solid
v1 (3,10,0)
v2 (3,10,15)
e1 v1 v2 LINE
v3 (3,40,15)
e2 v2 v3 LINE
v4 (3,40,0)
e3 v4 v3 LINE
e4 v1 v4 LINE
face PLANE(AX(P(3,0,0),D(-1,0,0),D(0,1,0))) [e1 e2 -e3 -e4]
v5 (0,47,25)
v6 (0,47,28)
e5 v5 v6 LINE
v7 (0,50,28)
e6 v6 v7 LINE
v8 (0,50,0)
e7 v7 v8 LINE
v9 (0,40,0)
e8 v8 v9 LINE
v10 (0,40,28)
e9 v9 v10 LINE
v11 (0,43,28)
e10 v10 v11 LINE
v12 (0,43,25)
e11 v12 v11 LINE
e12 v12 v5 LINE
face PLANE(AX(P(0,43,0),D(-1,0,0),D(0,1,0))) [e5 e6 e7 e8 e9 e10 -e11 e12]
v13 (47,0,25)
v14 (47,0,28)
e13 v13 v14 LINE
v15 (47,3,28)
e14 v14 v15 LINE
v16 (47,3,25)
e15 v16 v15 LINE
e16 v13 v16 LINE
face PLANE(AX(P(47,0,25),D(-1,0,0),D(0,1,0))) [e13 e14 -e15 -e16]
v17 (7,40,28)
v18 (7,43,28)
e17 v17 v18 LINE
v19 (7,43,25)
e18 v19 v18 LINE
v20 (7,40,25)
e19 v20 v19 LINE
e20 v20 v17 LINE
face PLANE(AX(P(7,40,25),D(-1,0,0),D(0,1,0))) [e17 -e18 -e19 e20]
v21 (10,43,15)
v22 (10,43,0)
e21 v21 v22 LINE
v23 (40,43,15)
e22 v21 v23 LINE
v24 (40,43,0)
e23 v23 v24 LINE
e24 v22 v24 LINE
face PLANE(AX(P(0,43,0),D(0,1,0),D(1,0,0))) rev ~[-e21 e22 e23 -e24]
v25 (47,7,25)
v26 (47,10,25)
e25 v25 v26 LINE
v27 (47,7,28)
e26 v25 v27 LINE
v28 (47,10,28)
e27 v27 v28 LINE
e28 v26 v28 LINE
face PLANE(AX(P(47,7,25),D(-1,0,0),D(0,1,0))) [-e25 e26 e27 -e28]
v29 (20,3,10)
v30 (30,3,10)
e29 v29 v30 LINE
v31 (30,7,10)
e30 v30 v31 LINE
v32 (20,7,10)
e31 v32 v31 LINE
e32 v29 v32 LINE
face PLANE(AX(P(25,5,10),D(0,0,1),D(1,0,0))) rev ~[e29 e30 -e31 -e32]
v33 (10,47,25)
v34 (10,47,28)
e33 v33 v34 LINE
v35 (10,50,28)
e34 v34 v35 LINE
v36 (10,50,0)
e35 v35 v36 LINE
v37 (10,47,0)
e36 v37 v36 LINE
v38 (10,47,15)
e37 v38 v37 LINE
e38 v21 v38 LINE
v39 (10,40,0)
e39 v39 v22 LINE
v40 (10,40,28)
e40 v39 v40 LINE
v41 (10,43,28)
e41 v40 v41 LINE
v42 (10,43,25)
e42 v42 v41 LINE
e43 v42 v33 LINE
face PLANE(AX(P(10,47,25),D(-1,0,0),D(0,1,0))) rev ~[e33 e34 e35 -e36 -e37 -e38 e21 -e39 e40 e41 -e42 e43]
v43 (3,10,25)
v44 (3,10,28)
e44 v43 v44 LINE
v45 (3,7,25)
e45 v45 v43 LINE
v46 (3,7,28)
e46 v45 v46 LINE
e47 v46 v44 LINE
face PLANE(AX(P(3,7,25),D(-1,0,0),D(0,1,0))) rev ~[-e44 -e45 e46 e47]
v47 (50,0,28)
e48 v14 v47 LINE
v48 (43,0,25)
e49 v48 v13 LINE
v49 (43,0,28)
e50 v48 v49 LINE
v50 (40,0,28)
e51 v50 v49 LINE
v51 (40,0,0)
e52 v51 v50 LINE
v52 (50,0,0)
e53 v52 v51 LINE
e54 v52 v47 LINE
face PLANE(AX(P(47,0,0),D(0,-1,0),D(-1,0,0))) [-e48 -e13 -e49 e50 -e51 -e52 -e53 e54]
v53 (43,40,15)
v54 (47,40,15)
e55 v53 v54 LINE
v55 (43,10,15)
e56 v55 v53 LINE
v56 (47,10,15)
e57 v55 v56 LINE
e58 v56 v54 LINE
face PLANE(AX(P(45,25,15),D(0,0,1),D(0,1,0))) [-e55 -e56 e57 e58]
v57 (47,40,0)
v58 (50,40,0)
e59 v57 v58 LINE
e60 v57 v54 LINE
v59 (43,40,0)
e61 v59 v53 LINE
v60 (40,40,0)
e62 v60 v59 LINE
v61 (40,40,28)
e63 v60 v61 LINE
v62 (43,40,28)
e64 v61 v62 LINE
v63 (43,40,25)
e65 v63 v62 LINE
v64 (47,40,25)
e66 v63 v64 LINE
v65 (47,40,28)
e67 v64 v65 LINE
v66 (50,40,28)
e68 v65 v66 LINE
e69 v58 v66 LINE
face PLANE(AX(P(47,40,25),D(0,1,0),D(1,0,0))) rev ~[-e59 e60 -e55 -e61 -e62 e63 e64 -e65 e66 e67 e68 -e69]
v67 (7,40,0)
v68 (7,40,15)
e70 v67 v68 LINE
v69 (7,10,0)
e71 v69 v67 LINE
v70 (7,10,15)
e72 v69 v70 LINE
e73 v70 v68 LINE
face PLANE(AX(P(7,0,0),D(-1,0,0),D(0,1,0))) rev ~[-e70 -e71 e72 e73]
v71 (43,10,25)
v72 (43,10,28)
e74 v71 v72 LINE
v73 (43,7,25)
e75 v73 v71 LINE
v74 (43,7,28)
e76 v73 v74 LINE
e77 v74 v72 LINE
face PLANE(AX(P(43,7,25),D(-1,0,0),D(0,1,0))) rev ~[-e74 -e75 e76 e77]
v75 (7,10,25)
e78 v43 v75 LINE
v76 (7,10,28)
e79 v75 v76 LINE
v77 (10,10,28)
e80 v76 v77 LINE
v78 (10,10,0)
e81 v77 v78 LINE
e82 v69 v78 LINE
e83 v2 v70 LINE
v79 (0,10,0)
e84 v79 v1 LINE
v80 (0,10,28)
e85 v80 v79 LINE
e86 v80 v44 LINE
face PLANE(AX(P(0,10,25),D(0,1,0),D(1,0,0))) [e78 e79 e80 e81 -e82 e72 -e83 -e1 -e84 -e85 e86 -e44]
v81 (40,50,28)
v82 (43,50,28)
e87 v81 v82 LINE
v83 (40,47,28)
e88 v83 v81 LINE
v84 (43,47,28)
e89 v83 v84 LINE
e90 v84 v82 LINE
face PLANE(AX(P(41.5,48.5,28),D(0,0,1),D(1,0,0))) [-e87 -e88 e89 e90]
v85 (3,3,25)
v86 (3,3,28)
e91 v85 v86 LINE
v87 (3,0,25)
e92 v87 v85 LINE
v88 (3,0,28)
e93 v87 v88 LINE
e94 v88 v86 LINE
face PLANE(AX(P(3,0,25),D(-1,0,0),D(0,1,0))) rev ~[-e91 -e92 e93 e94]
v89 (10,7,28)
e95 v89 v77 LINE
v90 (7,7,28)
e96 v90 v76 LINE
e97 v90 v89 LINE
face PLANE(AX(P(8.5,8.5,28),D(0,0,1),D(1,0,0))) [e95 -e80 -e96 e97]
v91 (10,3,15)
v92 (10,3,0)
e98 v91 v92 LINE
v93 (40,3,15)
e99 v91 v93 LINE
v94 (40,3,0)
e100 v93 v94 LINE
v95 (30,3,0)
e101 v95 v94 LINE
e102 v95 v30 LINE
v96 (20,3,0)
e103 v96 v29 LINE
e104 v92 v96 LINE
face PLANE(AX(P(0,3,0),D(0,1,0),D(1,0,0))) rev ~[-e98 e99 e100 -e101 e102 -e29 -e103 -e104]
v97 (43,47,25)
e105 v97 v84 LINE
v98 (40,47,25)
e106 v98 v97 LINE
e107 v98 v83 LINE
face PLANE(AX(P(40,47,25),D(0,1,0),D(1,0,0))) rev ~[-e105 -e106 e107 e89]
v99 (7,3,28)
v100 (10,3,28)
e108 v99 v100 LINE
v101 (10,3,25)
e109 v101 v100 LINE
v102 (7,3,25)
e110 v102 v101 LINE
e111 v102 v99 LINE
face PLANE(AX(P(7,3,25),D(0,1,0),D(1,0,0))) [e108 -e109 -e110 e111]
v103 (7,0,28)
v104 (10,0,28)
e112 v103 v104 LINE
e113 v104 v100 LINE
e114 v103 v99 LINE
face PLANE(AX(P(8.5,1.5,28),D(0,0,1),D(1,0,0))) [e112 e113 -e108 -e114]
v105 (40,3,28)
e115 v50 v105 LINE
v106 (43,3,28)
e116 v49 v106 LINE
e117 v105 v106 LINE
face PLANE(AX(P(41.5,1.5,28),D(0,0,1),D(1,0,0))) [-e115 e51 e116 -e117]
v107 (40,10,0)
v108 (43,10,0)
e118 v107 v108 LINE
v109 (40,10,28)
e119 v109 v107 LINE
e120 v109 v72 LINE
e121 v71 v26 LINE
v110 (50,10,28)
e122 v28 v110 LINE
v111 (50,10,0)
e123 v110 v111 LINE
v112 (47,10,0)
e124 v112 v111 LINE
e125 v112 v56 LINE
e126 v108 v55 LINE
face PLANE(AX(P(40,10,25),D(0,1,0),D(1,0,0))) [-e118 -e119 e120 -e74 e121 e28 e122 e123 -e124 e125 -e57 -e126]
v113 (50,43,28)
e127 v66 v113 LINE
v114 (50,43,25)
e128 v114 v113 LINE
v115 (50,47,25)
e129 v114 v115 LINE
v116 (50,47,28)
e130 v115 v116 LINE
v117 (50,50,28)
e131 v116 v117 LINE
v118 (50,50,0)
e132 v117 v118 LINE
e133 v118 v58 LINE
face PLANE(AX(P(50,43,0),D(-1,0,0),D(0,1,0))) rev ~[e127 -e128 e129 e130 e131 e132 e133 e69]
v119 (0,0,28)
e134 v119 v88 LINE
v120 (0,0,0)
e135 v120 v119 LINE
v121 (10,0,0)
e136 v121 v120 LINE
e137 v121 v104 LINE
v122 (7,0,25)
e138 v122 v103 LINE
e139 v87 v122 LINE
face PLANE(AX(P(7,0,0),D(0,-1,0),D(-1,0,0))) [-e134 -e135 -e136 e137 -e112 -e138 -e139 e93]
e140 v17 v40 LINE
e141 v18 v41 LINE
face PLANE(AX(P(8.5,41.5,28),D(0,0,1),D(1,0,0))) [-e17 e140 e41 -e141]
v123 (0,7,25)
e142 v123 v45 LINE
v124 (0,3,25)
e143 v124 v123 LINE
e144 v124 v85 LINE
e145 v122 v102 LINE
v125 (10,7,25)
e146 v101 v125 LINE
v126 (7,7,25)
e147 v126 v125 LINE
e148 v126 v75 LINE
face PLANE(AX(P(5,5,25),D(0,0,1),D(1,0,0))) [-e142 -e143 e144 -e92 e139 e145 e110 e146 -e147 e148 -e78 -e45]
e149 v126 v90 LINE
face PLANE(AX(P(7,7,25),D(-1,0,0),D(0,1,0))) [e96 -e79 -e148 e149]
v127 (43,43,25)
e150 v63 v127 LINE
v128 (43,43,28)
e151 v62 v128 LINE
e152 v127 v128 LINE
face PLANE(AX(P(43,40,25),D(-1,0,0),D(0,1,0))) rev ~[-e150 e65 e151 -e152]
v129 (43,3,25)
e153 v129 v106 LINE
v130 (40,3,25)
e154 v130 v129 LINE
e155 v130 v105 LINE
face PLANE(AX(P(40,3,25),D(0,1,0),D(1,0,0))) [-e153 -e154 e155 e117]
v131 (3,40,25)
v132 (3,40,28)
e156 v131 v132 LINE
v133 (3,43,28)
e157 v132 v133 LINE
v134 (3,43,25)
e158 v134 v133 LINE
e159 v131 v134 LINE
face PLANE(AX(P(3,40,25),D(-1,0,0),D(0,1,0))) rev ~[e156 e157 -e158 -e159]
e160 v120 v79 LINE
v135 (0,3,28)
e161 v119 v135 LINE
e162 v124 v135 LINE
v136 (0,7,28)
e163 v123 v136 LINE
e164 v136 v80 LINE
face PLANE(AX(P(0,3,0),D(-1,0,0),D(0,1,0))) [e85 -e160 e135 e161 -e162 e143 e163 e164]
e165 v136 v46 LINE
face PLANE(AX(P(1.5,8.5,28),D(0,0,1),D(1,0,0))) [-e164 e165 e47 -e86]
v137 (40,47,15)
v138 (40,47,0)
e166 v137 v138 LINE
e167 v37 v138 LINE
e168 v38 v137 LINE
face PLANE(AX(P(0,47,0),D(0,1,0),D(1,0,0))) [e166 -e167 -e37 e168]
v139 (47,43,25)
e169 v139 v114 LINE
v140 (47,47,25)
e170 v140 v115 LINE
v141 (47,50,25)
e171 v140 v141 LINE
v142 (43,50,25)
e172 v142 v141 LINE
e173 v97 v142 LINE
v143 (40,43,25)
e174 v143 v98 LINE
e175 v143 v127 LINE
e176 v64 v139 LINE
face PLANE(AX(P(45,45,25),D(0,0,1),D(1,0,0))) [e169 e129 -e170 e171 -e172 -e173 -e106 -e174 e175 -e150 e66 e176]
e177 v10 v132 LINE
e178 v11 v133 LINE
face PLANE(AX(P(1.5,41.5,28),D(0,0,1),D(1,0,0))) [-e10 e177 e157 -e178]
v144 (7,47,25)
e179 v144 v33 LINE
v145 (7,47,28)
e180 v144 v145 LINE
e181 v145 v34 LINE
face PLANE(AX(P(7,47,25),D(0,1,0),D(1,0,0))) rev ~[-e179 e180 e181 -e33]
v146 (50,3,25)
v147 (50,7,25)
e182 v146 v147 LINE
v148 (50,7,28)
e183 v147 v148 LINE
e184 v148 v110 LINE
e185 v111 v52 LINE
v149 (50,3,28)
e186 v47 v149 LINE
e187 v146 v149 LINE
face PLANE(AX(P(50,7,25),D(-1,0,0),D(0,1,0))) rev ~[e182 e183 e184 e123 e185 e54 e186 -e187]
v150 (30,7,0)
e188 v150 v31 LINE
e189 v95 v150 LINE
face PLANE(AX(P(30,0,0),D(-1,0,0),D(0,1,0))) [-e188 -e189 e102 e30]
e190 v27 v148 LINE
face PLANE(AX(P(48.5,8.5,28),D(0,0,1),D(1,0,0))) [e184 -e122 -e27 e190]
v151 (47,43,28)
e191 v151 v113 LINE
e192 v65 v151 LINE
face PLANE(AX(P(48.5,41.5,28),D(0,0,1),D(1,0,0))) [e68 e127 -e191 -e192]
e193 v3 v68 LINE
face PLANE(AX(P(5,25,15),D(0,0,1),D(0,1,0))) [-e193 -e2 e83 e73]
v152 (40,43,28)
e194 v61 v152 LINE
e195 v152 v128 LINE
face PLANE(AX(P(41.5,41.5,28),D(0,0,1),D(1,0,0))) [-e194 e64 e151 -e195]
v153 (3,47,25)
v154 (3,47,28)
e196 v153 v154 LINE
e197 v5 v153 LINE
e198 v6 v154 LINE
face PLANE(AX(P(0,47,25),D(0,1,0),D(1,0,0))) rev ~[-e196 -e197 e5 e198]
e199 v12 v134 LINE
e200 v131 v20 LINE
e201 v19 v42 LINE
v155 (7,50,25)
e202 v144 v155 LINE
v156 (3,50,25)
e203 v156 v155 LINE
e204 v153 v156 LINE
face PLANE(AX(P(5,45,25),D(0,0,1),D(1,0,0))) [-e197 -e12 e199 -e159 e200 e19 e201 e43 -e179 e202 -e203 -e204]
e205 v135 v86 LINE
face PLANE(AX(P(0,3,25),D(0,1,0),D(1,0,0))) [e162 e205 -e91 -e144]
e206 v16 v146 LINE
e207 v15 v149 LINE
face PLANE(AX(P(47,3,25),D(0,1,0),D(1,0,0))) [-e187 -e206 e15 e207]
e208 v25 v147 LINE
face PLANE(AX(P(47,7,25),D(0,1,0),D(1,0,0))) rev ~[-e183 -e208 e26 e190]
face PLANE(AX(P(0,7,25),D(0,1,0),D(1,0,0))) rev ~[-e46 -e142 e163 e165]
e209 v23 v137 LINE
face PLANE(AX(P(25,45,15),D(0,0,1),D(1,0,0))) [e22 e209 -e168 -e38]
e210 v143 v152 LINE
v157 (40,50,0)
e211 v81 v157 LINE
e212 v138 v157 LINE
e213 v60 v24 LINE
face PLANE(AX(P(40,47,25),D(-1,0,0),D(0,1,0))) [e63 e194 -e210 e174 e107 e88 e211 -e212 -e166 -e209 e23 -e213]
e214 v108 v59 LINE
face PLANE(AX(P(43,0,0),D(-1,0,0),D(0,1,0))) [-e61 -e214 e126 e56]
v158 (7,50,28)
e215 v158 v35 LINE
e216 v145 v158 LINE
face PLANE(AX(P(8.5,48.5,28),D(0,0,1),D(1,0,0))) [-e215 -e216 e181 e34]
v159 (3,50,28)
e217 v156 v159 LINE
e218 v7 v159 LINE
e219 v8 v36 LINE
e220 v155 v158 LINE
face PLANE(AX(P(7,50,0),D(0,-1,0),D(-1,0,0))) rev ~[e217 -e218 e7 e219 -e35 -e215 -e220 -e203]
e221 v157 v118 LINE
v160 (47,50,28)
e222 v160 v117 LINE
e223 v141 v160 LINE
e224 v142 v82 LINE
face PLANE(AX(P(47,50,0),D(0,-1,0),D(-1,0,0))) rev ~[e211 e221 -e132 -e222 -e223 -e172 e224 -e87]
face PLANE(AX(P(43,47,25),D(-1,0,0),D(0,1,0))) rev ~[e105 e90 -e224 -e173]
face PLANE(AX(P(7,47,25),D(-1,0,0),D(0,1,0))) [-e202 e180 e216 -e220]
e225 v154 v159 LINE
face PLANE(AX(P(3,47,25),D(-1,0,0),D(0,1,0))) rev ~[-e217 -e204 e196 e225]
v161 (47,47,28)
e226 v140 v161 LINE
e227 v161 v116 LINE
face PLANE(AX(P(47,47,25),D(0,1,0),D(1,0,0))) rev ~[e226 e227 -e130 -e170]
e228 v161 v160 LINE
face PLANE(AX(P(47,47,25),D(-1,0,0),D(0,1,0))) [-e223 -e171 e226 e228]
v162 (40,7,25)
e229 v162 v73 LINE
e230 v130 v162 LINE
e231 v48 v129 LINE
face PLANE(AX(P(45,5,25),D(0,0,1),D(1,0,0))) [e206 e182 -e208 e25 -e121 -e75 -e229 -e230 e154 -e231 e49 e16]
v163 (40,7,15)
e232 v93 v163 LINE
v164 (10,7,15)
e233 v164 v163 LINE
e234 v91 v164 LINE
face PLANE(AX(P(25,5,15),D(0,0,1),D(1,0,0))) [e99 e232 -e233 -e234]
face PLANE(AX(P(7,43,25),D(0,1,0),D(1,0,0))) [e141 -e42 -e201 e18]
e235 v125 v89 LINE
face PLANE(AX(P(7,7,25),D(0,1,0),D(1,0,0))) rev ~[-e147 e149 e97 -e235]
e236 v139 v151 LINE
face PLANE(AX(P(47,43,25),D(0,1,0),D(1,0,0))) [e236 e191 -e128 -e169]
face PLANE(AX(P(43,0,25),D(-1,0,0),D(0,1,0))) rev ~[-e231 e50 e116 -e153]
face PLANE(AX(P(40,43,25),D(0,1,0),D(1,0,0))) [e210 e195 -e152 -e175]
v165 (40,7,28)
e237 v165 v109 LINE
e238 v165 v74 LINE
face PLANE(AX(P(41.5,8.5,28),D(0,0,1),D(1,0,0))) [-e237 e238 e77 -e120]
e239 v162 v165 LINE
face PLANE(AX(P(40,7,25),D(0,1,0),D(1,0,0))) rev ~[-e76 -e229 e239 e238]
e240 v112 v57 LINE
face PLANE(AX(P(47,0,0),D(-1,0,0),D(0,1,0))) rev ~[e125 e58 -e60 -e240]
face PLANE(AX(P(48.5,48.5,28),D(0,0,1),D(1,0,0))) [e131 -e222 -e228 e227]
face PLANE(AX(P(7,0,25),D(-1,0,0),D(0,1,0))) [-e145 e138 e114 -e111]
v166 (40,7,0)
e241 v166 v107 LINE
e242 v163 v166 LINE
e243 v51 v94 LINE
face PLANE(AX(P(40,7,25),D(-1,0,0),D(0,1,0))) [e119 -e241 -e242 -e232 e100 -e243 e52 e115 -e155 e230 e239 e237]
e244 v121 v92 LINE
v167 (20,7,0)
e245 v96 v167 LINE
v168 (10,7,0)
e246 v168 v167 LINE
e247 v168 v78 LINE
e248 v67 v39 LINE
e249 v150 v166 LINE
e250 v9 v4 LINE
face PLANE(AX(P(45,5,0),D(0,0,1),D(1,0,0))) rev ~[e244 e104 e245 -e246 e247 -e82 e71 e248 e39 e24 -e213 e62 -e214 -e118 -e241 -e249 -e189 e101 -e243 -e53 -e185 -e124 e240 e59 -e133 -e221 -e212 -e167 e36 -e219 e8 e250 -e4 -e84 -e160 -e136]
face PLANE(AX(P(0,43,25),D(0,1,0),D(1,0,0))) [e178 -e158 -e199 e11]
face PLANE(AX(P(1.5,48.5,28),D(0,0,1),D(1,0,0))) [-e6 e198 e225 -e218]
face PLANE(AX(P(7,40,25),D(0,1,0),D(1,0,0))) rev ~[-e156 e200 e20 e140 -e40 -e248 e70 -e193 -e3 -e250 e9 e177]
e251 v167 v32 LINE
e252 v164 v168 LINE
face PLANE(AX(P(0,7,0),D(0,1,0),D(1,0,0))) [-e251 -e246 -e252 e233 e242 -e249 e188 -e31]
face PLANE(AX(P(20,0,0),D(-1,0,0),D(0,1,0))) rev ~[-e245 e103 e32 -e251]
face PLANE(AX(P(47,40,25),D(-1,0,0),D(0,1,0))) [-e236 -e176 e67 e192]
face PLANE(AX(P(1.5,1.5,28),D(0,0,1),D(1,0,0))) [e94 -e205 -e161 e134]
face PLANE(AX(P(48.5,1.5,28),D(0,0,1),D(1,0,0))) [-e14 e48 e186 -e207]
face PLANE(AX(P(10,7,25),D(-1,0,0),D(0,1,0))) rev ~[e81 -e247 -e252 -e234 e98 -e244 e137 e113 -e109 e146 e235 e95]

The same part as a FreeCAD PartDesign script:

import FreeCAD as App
import Part
import Sketcher


def add_polygon(sketch, points):
    """Adds a closed chain of lines whose ends are joined by coincident constraints."""
    first, n = sketch.GeometryCount, len(points)
    for a, b in zip(points, points[1:] + points[:1]):
        sketch.addGeometry(Part.LineSegment(App.Vector(*a, 0), App.Vector(*b, 0)), False)
    for i in range(n):
        sketch.addConstraint(Sketcher.Constraint("Coincident", first + i, 2, first + (i + 1) % n, 1))

doc = App.newDocument("Part")
params = doc.addObject("Spreadsheet::Sheet", "Params")
for row, (alias, value) in enumerate([
    ("sketch1_width", "3 mm"),
    ("pad1_length", "3 mm"),
    ("sketch2_width", "3 mm"),
    ("pad2_length", "3 mm"),
    ("sketch3_width", "3 mm"),
    ("pad3_length", "3 mm"),
    ("sketch4_width", "3 mm"),
    ("pad4_length", "3 mm"),
    ("sketch5_width", "10 mm"),
    ("pad5_length", "25 mm"),
    ("sketch6_width", "3 mm"),
    ("pad6_length", "3 mm"),
    ("sketch7_width", "3 mm"),
    ("pad7_length", "3 mm"),
    ("sketch8_width", "3 mm"),
    ("pad8_length", "3 mm"),
    ("sketch9_width", "3 mm"),
    ("pad9_length", "3 mm"),
    ("sketch10_width", "10 mm"),
    ("pad10_length", "25 mm"),
    ("sketch11_width", "3 mm"),
    ("pad11_length", "3 mm"),
    ("sketch12_width", "3 mm"),
    ("pad12_length", "3 mm"),
    ("sketch13_width", "3 mm"),
    ("pad13_length", "3 mm"),
    ("sketch14_width", "3 mm"),
    ("pad14_length", "3 mm"),
    ("sketch15_width", "10 mm"),
    ("pad15_length", "25 mm"),
    ("sketch16_width", "50 mm"),
    ("sketch16_height", "4 mm"),
    ("pad16_length", "15 mm"),
    ("sketch17_width", "4 mm"),
    ("sketch17_height", "50 mm"),
    ("pad17_length", "15 mm"),
    ("sketch18_width", "4 mm"),
    ("sketch18_height", "50 mm"),
    ("pad18_length", "15 mm"),
    ("sketch19_width", "10 mm"),
    ("pad19_length", "10 mm"),
    ("sketch20_width", "50 mm"),
    ("sketch20_height", "4 mm"),
    ("pad20_length", "15 mm"),
    ("sketch21_width", "3 mm"),
    ("pad21_length", "3 mm"),
    ("sketch22_width", "3 mm"),
    ("pad22_length", "3 mm"),
    ("sketch23_width", "3 mm"),
    ("pad23_length", "3 mm"),
    ("sketch24_width", "3 mm"),
    ("pad24_length", "3 mm"),
    ("sketch25_width", "10 mm"),
    ("pad25_length", "25 mm"),
], start=1):
    params.set(f"A{row}", alias)
    params.set(f"B{row}", "=" + value)
    params.setAlias(f"B{row}", alias)

body = doc.addObject("PartDesign::Body", "Body")

# Sketch on XY plane
sketch1 = doc.addObject("Sketcher::SketchObject", "Sketch")
body.addObject(sketch1)
sketch1.AttachmentSupport = (doc.XY_Plane, [""])
sketch1.MapMode = "FlatFace"
sketch1.AttachmentOffset = App.Placement(App.Vector(0, 0, 25), App.Rotation())
add_polygon(sketch1, [(0, 3), (0, 0), (3, 0), (3, 3)])  # lines 0-3
sketch1.addConstraint(Sketcher.Constraint("Vertical", 0))
sketch1.addConstraint(Sketcher.Constraint("Horizontal", 1))
sketch1.addConstraint(Sketcher.Constraint("Vertical", 2))
sketch1.addConstraint(Sketcher.Constraint("Horizontal", 3))
sketch1.addConstraint(Sketcher.Constraint("Coincident", 0, 2, -1, 1))
sketch1.addConstraint(Sketcher.Constraint("Equal", 3, 0))
sketch1.addConstraint(Sketcher.Constraint("DistanceX", 1, 1, 1, 2, 3.0))
sketch1.setExpression("Constraints[10]", "Params.sketch1_width")
pad1 = doc.addObject("PartDesign::Pad", "Pad")
body.addObject(pad1)
pad1.Profile = sketch1
pad1.setExpression("Length", "Params.pad1_length")
body2 = doc.addObject("PartDesign::Body", "Body001")

# Sketch on XY plane
sketch2 = doc.addObject("Sketcher::SketchObject", "Sketch001")
body2.addObject(sketch2)
sketch2.AttachmentSupport = (doc.getObject("XY_Plane001"), [""])
sketch2.MapMode = "FlatFace"
sketch2.AttachmentOffset = App.Placement(App.Vector(0, 0, 25), App.Rotation())
add_polygon(sketch2, [(7, 3), (7, 0), (10, 0), (10, 3)])  # lines 0-3
sketch2.addConstraint(Sketcher.Constraint("Vertical", 0))
sketch2.addConstraint(Sketcher.Constraint("Horizontal", 1))
sketch2.addConstraint(Sketcher.Constraint("Vertical", 2))
sketch2.addConstraint(Sketcher.Constraint("Horizontal", 3))
sketch2.addConstraint(Sketcher.Constraint("PointOnObject", 0, 2, -1))
sketch2.addConstraint(Sketcher.Constraint("Equal", 3, 0))
sketch2.addConstraint(Sketcher.Constraint("DistanceX", 1, 1, 1, 2, 3.0))
sketch2.addConstraint(Sketcher.Constraint("DistanceX", -1, 1, 0, 2, 7.0))
sketch2.setExpression("Constraints[10]", "Params.sketch2_width")
pad2 = doc.addObject("PartDesign::Pad", "Pad001")
body2.addObject(pad2)
pad2.Profile = sketch2
pad2.setExpression("Length", "Params.pad2_length")
body3 = doc.addObject("PartDesign::Body", "Body002")

# Sketch on XY plane
sketch3 = doc.addObject("Sketcher::SketchObject", "Sketch002")
body3.addObject(sketch3)
sketch3.AttachmentSupport = (doc.getObject("XY_Plane002"), [""])
sketch3.MapMode = "FlatFace"
sketch3.AttachmentOffset = App.Placement(App.Vector(0, 0, 25), App.Rotation())
add_polygon(sketch3, [(7, 10), (7, 7), (10, 7), (10, 10)])  # lines 0-3
sketch3.addConstraint(Sketcher.Constraint("Vertical", 0))
sketch3.addConstraint(Sketcher.Constraint("Horizontal", 1))
sketch3.addConstraint(Sketcher.Constraint("Vertical", 2))
sketch3.addConstraint(Sketcher.Constraint("Horizontal", 3))
sketch3.addConstraint(Sketcher.Constraint("Equal", 3, 0))
sketch3.addConstraint(Sketcher.Constraint("DistanceX", 1, 1, 1, 2, 3.0))
sketch3.addConstraint(Sketcher.Constraint("DistanceX", -1, 1, 0, 2, 7.0))
sketch3.addConstraint(Sketcher.Constraint("DistanceY", -1, 1, 0, 2, 7.0))
sketch3.setExpression("Constraints[9]", "Params.sketch3_width")
pad3 = doc.addObject("PartDesign::Pad", "Pad002")
body3.addObject(pad3)
pad3.Profile = sketch3
pad3.setExpression("Length", "Params.pad3_length")
body4 = doc.addObject("PartDesign::Body", "Body003")

# Sketch on XY plane
sketch4 = doc.addObject("Sketcher::SketchObject", "Sketch003")
body4.addObject(sketch4)
sketch4.AttachmentSupport = (doc.getObject("XY_Plane003"), [""])
sketch4.MapMode = "FlatFace"
sketch4.AttachmentOffset = App.Placement(App.Vector(0, 0, 25), App.Rotation())
add_polygon(sketch4, [(0, 10), (0, 7), (3, 7), (3, 10)])  # lines 0-3
sketch4.addConstraint(Sketcher.Constraint("Vertical", 0))
sketch4.addConstraint(Sketcher.Constraint("Horizontal", 1))
sketch4.addConstraint(Sketcher.Constraint("Vertical", 2))
sketch4.addConstraint(Sketcher.Constraint("Horizontal", 3))
sketch4.addConstraint(Sketcher.Constraint("PointOnObject", 0, 2, -2))
sketch4.addConstraint(Sketcher.Constraint("Equal", 3, 0))
sketch4.addConstraint(Sketcher.Constraint("DistanceX", 1, 1, 1, 2, 3.0))
sketch4.addConstraint(Sketcher.Constraint("DistanceY", -1, 1, 0, 2, 7.0))
sketch4.setExpression("Constraints[10]", "Params.sketch4_width")
pad4 = doc.addObject("PartDesign::Pad", "Pad003")
body4.addObject(pad4)
pad4.Profile = sketch4
pad4.setExpression("Length", "Params.pad4_length")
body5 = doc.addObject("PartDesign::Body", "Body004")

# Sketch on XY plane
sketch5 = doc.addObject("Sketcher::SketchObject", "Sketch004")
body5.addObject(sketch5)
sketch5.AttachmentSupport = (doc.getObject("XY_Plane004"), [""])
sketch5.MapMode = "FlatFace"
add_polygon(sketch5, [(0, 10), (0, 0), (10, 0), (10, 10)])  # lines 0-3
sketch5.addConstraint(Sketcher.Constraint("Vertical", 0))
sketch5.addConstraint(Sketcher.Constraint("Horizontal", 1))
sketch5.addConstraint(Sketcher.Constraint("Vertical", 2))
sketch5.addConstraint(Sketcher.Constraint("Horizontal", 3))
sketch5.addConstraint(Sketcher.Constraint("Coincident", 0, 2, -1, 1))
sketch5.addConstraint(Sketcher.Constraint("Equal", 3, 0))
sketch5.addConstraint(Sketcher.Constraint("DistanceX", 1, 1, 1, 2, 10.0))
sketch5.setExpression("Constraints[10]", "Params.sketch5_width")
pad5 = doc.addObject("PartDesign::Pad", "Pad004")
body5.addObject(pad5)
pad5.Profile = sketch5
pad5.setExpression("Length", "Params.pad5_length")
doc.recompute()

boolean = doc.addObject("PartDesign::Boolean", "Boolean")
body5.addObject(boolean)
boolean.Type = "Fuse"
boolean.addObjects([body])
doc.recompute()

boolean2 = doc.addObject("PartDesign::Boolean", "Boolean001")
body5.addObject(boolean2)
boolean2.Type = "Fuse"
boolean2.addObjects([body2])
doc.recompute()

boolean3 = doc.addObject("PartDesign::Boolean", "Boolean002")
body5.addObject(boolean3)
boolean3.Type = "Fuse"
boolean3.addObjects([body3])
doc.recompute()

boolean4 = doc.addObject("PartDesign::Boolean", "Boolean003")
body5.addObject(boolean4)
boolean4.Type = "Fuse"
boolean4.addObjects([body4])
body6 = doc.addObject("PartDesign::Body", "Body005")

# Sketch on XY plane
sketch6 = doc.addObject("Sketcher::SketchObject", "Sketch005")
body6.addObject(sketch6)
sketch6.AttachmentSupport = (doc.getObject("XY_Plane005"), [""])
sketch6.MapMode = "FlatFace"
sketch6.AttachmentOffset = App.Placement(App.Vector(0, 0, 25), App.Rotation())
add_polygon(sketch6, [(0, 3), (0, 0), (3, 0), (3, 3)])  # lines 0-3
sketch6.addConstraint(Sketcher.Constraint("Vertical", 0))
sketch6.addConstraint(Sketcher.Constraint("Horizontal", 1))
sketch6.addConstraint(Sketcher.Constraint("Vertical", 2))
sketch6.addConstraint(Sketcher.Constraint("Horizontal", 3))
sketch6.addConstraint(Sketcher.Constraint("Coincident", 0, 2, -1, 1))
sketch6.addConstraint(Sketcher.Constraint("Equal", 3, 0))
sketch6.addConstraint(Sketcher.Constraint("DistanceX", 1, 1, 1, 2, 3.0))
sketch6.setExpression("Constraints[10]", "Params.sketch6_width")
pad6 = doc.addObject("PartDesign::Pad", "Pad005")
body6.addObject(pad6)
pad6.Profile = sketch6
pad6.setExpression("Length", "Params.pad6_length")
body7 = doc.addObject("PartDesign::Body", "Body006")

# Sketch on XY plane
sketch7 = doc.addObject("Sketcher::SketchObject", "Sketch006")
body7.addObject(sketch7)
sketch7.AttachmentSupport = (doc.getObject("XY_Plane006"), [""])
sketch7.MapMode = "FlatFace"
sketch7.AttachmentOffset = App.Placement(App.Vector(0, 0, 25), App.Rotation())
add_polygon(sketch7, [(7, 3), (7, 0), (10, 0), (10, 3)])  # lines 0-3
sketch7.addConstraint(Sketcher.Constraint("Vertical", 0))
sketch7.addConstraint(Sketcher.Constraint("Horizontal", 1))
sketch7.addConstraint(Sketcher.Constraint("Vertical", 2))
sketch7.addConstraint(Sketcher.Constraint("Horizontal", 3))
sketch7.addConstraint(Sketcher.Constraint("PointOnObject", 0, 2, -1))
sketch7.addConstraint(Sketcher.Constraint("Equal", 3, 0))
sketch7.addConstraint(Sketcher.Constraint("DistanceX", 1, 1, 1, 2, 3.0))
sketch7.addConstraint(Sketcher.Constraint("DistanceX", -1, 1, 0, 2, 7.0))
sketch7.setExpression("Constraints[10]", "Params.sketch7_width")
pad7 = doc.addObject("PartDesign::Pad", "Pad006")
body7.addObject(pad7)
pad7.Profile = sketch7
pad7.setExpression("Length", "Params.pad7_length")
body8 = doc.addObject("PartDesign::Body", "Body007")

# Sketch on XY plane
sketch8 = doc.addObject("Sketcher::SketchObject", "Sketch007")
body8.addObject(sketch8)
sketch8.AttachmentSupport = (doc.getObject("XY_Plane007"), [""])
sketch8.MapMode = "FlatFace"
sketch8.AttachmentOffset = App.Placement(App.Vector(0, 0, 25), App.Rotation())
add_polygon(sketch8, [(7, 10), (7, 7), (10, 7), (10, 10)])  # lines 0-3
sketch8.addConstraint(Sketcher.Constraint("Vertical", 0))
sketch8.addConstraint(Sketcher.Constraint("Horizontal", 1))
sketch8.addConstraint(Sketcher.Constraint("Vertical", 2))
sketch8.addConstraint(Sketcher.Constraint("Horizontal", 3))
sketch8.addConstraint(Sketcher.Constraint("Equal", 3, 0))
sketch8.addConstraint(Sketcher.Constraint("DistanceX", 1, 1, 1, 2, 3.0))
sketch8.addConstraint(Sketcher.Constraint("DistanceX", -1, 1, 0, 2, 7.0))
sketch8.addConstraint(Sketcher.Constraint("DistanceY", -1, 1, 0, 2, 7.0))
sketch8.setExpression("Constraints[9]", "Params.sketch8_width")
pad8 = doc.addObject("PartDesign::Pad", "Pad007")
body8.addObject(pad8)
pad8.Profile = sketch8
pad8.setExpression("Length", "Params.pad8_length")
body9 = doc.addObject("PartDesign::Body", "Body008")

# Sketch on XY plane
sketch9 = doc.addObject("Sketcher::SketchObject", "Sketch008")
body9.addObject(sketch9)
sketch9.AttachmentSupport = (doc.getObject("XY_Plane008"), [""])
sketch9.MapMode = "FlatFace"
sketch9.AttachmentOffset = App.Placement(App.Vector(0, 0, 25), App.Rotation())
add_polygon(sketch9, [(0, 10), (0, 7), (3, 7), (3, 10)])  # lines 0-3
sketch9.addConstraint(Sketcher.Constraint("Vertical", 0))
sketch9.addConstraint(Sketcher.Constraint("Horizontal", 1))
sketch9.addConstraint(Sketcher.Constraint("Vertical", 2))
sketch9.addConstraint(Sketcher.Constraint("Horizontal", 3))
sketch9.addConstraint(Sketcher.Constraint("PointOnObject", 0, 2, -2))
sketch9.addConstraint(Sketcher.Constraint("Equal", 3, 0))
sketch9.addConstraint(Sketcher.Constraint("DistanceX", 1, 1, 1, 2, 3.0))
sketch9.addConstraint(Sketcher.Constraint("DistanceY", -1, 1, 0, 2, 7.0))
sketch9.setExpression("Constraints[10]", "Params.sketch9_width")
pad9 = doc.addObject("PartDesign::Pad", "Pad008")
body9.addObject(pad9)
pad9.Profile = sketch9
pad9.setExpression("Length", "Params.pad9_length")
body10 = doc.addObject("PartDesign::Body", "Body009")

# Sketch on XY plane
sketch10 = doc.addObject("Sketcher::SketchObject", "Sketch009")
body10.addObject(sketch10)
sketch10.AttachmentSupport = (doc.getObject("XY_Plane009"), [""])
sketch10.MapMode = "FlatFace"
add_polygon(sketch10, [(0, 10), (0, 0), (10, 0), (10, 10)])  # lines 0-3
sketch10.addConstraint(Sketcher.Constraint("Vertical", 0))
sketch10.addConstraint(Sketcher.Constraint("Horizontal", 1))
sketch10.addConstraint(Sketcher.Constraint("Vertical", 2))
sketch10.addConstraint(Sketcher.Constraint("Horizontal", 3))
sketch10.addConstraint(Sketcher.Constraint("Coincident", 0, 2, -1, 1))
sketch10.addConstraint(Sketcher.Constraint("Equal", 3, 0))
sketch10.addConstraint(Sketcher.Constraint("DistanceX", 1, 1, 1, 2, 10.0))
sketch10.setExpression("Constraints[10]", "Params.sketch10_width")
pad10 = doc.addObject("PartDesign::Pad", "Pad009")
body10.addObject(pad10)
pad10.Profile = sketch10
pad10.setExpression("Length", "Params.pad10_length")
doc.recompute()

boolean5 = doc.addObject("PartDesign::Boolean", "Boolean004")
body10.addObject(boolean5)
boolean5.Type = "Fuse"
boolean5.addObjects([body6])
doc.recompute()

boolean6 = doc.addObject("PartDesign::Boolean", "Boolean005")
body10.addObject(boolean6)
boolean6.Type = "Fuse"
boolean6.addObjects([body7])
doc.recompute()

boolean7 = doc.addObject("PartDesign::Boolean", "Boolean006")
body10.addObject(boolean7)
boolean7.Type = "Fuse"
boolean7.addObjects([body8])
doc.recompute()

boolean8 = doc.addObject("PartDesign::Boolean", "Boolean007")
body10.addObject(boolean8)
boolean8.Type = "Fuse"
boolean8.addObjects([body9])
body11 = doc.addObject("PartDesign::Body", "Body010")
doc.recompute()

body10.Placement = App.Placement(App.Vector(40, 40, 0), App.Rotation(App.Vector(0, 0, 1), 0))
boolean9 = doc.addObject("PartDesign::Boolean", "Boolean008")
body11.addObject(boolean9)
boolean9.Type = "Fuse"
boolean9.addObjects([body10])
body12 = doc.addObject("PartDesign::Body", "Body011")

# Sketch on XY plane
sketch11 = doc.addObject("Sketcher::SketchObject", "Sketch010")
body12.addObject(sketch11)
sketch11.AttachmentSupport = (doc.getObject("XY_Plane011"), [""])
sketch11.MapMode = "FlatFace"
sketch11.AttachmentOffset = App.Placement(App.Vector(0, 0, 25), App.Rotation())
add_polygon(sketch11, [(0, 3), (0, 0), (3, 0), (3, 3)])  # lines 0-3
sketch11.addConstraint(Sketcher.Constraint("Vertical", 0))
sketch11.addConstraint(Sketcher.Constraint("Horizontal", 1))
sketch11.addConstraint(Sketcher.Constraint("Vertical", 2))
sketch11.addConstraint(Sketcher.Constraint("Horizontal", 3))
sketch11.addConstraint(Sketcher.Constraint("Coincident", 0, 2, -1, 1))
sketch11.addConstraint(Sketcher.Constraint("Equal", 3, 0))
sketch11.addConstraint(Sketcher.Constraint("DistanceX", 1, 1, 1, 2, 3.0))
sketch11.setExpression("Constraints[10]", "Params.sketch11_width")
pad11 = doc.addObject("PartDesign::Pad", "Pad010")
body12.addObject(pad11)
pad11.Profile = sketch11
pad11.setExpression("Length", "Params.pad11_length")
body13 = doc.addObject("PartDesign::Body", "Body012")

# Sketch on XY plane
sketch12 = doc.addObject("Sketcher::SketchObject", "Sketch011")
body13.addObject(sketch12)
sketch12.AttachmentSupport = (doc.getObject("XY_Plane012"), [""])
sketch12.MapMode = "FlatFace"
sketch12.AttachmentOffset = App.Placement(App.Vector(0, 0, 25), App.Rotation())
add_polygon(sketch12, [(7, 3), (7, 0), (10, 0), (10, 3)])  # lines 0-3
sketch12.addConstraint(Sketcher.Constraint("Vertical", 0))
sketch12.addConstraint(Sketcher.Constraint("Horizontal", 1))
sketch12.addConstraint(Sketcher.Constraint("Vertical", 2))
sketch12.addConstraint(Sketcher.Constraint("Horizontal", 3))
sketch12.addConstraint(Sketcher.Constraint("PointOnObject", 0, 2, -1))
sketch12.addConstraint(Sketcher.Constraint("Equal", 3, 0))
sketch12.addConstraint(Sketcher.Constraint("DistanceX", 1, 1, 1, 2, 3.0))
sketch12.addConstraint(Sketcher.Constraint("DistanceX", -1, 1, 0, 2, 7.0))
sketch12.setExpression("Constraints[10]", "Params.sketch12_width")
pad12 = doc.addObject("PartDesign::Pad", "Pad011")
body13.addObject(pad12)
pad12.Profile = sketch12
pad12.setExpression("Length", "Params.pad12_length")
body14 = doc.addObject("PartDesign::Body", "Body013")

# Sketch on XY plane
sketch13 = doc.addObject("Sketcher::SketchObject", "Sketch012")
body14.addObject(sketch13)
sketch13.AttachmentSupport = (doc.getObject("XY_Plane013"), [""])
sketch13.MapMode = "FlatFace"
sketch13.AttachmentOffset = App.Placement(App.Vector(0, 0, 25), App.Rotation())
add_polygon(sketch13, [(7, 10), (7, 7), (10, 7), (10, 10)])  # lines 0-3
sketch13.addConstraint(Sketcher.Constraint("Vertical", 0))
sketch13.addConstraint(Sketcher.Constraint("Horizontal", 1))
sketch13.addConstraint(Sketcher.Constraint("Vertical", 2))
sketch13.addConstraint(Sketcher.Constraint("Horizontal", 3))
sketch13.addConstraint(Sketcher.Constraint("Equal", 3, 0))
sketch13.addConstraint(Sketcher.Constraint("DistanceX", 1, 1, 1, 2, 3.0))
sketch13.addConstraint(Sketcher.Constraint("DistanceX", -1, 1, 0, 2, 7.0))
sketch13.addConstraint(Sketcher.Constraint("DistanceY", -1, 1, 0, 2, 7.0))
sketch13.setExpression("Constraints[9]", "Params.sketch13_width")
pad13 = doc.addObject("PartDesign::Pad", "Pad012")
body14.addObject(pad13)
pad13.Profile = sketch13
pad13.setExpression("Length", "Params.pad13_length")
body15 = doc.addObject("PartDesign::Body", "Body014")

# Sketch on XY plane
sketch14 = doc.addObject("Sketcher::SketchObject", "Sketch013")
body15.addObject(sketch14)
sketch14.AttachmentSupport = (doc.getObject("XY_Plane014"), [""])
sketch14.MapMode = "FlatFace"
sketch14.AttachmentOffset = App.Placement(App.Vector(0, 0, 25), App.Rotation())
add_polygon(sketch14, [(0, 10), (0, 7), (3, 7), (3, 10)])  # lines 0-3
sketch14.addConstraint(Sketcher.Constraint("Vertical", 0))
sketch14.addConstraint(Sketcher.Constraint("Horizontal", 1))
sketch14.addConstraint(Sketcher.Constraint("Vertical", 2))
sketch14.addConstraint(Sketcher.Constraint("Horizontal", 3))
sketch14.addConstraint(Sketcher.Constraint("PointOnObject", 0, 2, -2))
sketch14.addConstraint(Sketcher.Constraint("Equal", 3, 0))
sketch14.addConstraint(Sketcher.Constraint("DistanceX", 1, 1, 1, 2, 3.0))
sketch14.addConstraint(Sketcher.Constraint("DistanceY", -1, 1, 0, 2, 7.0))
sketch14.setExpression("Constraints[10]", "Params.sketch14_width")
pad14 = doc.addObject("PartDesign::Pad", "Pad013")
body15.addObject(pad14)
pad14.Profile = sketch14
pad14.setExpression("Length", "Params.pad14_length")
body16 = doc.addObject("PartDesign::Body", "Body015")

# Sketch on XY plane
sketch15 = doc.addObject("Sketcher::SketchObject", "Sketch014")
body16.addObject(sketch15)
sketch15.AttachmentSupport = (doc.getObject("XY_Plane015"), [""])
sketch15.MapMode = "FlatFace"
add_polygon(sketch15, [(0, 10), (0, 0), (10, 0), (10, 10)])  # lines 0-3
sketch15.addConstraint(Sketcher.Constraint("Vertical", 0))
sketch15.addConstraint(Sketcher.Constraint("Horizontal", 1))
sketch15.addConstraint(Sketcher.Constraint("Vertical", 2))
sketch15.addConstraint(Sketcher.Constraint("Horizontal", 3))
sketch15.addConstraint(Sketcher.Constraint("Coincident", 0, 2, -1, 1))
sketch15.addConstraint(Sketcher.Constraint("Equal", 3, 0))
sketch15.addConstraint(Sketcher.Constraint("DistanceX", 1, 1, 1, 2, 10.0))
sketch15.setExpression("Constraints[10]", "Params.sketch15_width")
pad15 = doc.addObject("PartDesign::Pad", "Pad014")
body16.addObject(pad15)
pad15.Profile = sketch15
pad15.setExpression("Length", "Params.pad15_length")
doc.recompute()

boolean10 = doc.addObject("PartDesign::Boolean", "Boolean009")
body16.addObject(boolean10)
boolean10.Type = "Fuse"
boolean10.addObjects([body12])
doc.recompute()

boolean11 = doc.addObject("PartDesign::Boolean", "Boolean010")
body16.addObject(boolean11)
boolean11.Type = "Fuse"
boolean11.addObjects([body13])
doc.recompute()

boolean12 = doc.addObject("PartDesign::Boolean", "Boolean011")
body16.addObject(boolean12)
boolean12.Type = "Fuse"
boolean12.addObjects([body14])
doc.recompute()

boolean13 = doc.addObject("PartDesign::Boolean", "Boolean012")
body16.addObject(boolean13)
boolean13.Type = "Fuse"
boolean13.addObjects([body15])
body17 = doc.addObject("PartDesign::Body", "Body016")
doc.recompute()

body16.Placement = App.Placement(App.Vector(0, 40, 0), App.Rotation(App.Vector(0, 0, 1), 0))
boolean14 = doc.addObject("PartDesign::Boolean", "Boolean013")
body17.addObject(boolean14)
boolean14.Type = "Fuse"
boolean14.addObjects([body16])
body18 = doc.addObject("PartDesign::Body", "Body017")

# Sketch on XY plane
sketch16 = doc.addObject("Sketcher::SketchObject", "Sketch015")
body18.addObject(sketch16)
sketch16.AttachmentSupport = (doc.getObject("XY_Plane017"), [""])
sketch16.MapMode = "FlatFace"
add_polygon(sketch16, [(0, 47), (0, 43), (50, 43), (50, 47)])  # lines 0-3
sketch16.addConstraint(Sketcher.Constraint("Vertical", 0))
sketch16.addConstraint(Sketcher.Constraint("Horizontal", 1))
sketch16.addConstraint(Sketcher.Constraint("Vertical", 2))
sketch16.addConstraint(Sketcher.Constraint("Horizontal", 3))
sketch16.addConstraint(Sketcher.Constraint("PointOnObject", 0, 2, -2))
sketch16.addConstraint(Sketcher.Constraint("DistanceX", 1, 1, 1, 2, 50.0))
sketch16.addConstraint(Sketcher.Constraint("DistanceY", 0, 2, 0, 1, 4.0))
sketch16.addConstraint(Sketcher.Constraint("DistanceY", -1, 1, 0, 2, 43.0))
sketch16.setExpression("Constraints[9]", "Params.sketch16_width")
sketch16.setExpression("Constraints[10]", "Params.sketch16_height")
pad16 = doc.addObject("PartDesign::Pad", "Pad015")
body18.addObject(pad16)
pad16.Profile = sketch16
pad16.setExpression("Length", "Params.pad16_length")
body19 = doc.addObject("PartDesign::Body", "Body018")

# Sketch on XY plane
sketch17 = doc.addObject("Sketcher::SketchObject", "Sketch016")
body19.addObject(sketch17)
sketch17.AttachmentSupport = (doc.getObject("XY_Plane018"), [""])
sketch17.MapMode = "FlatFace"
add_polygon(sketch17, [(3, 0), (7, 0), (7, 50), (3, 50)])  # lines 0-3
sketch17.addConstraint(Sketcher.Constraint("Horizontal", 0))
sketch17.addConstraint(Sketcher.Constraint("Vertical", 1))
sketch17.addConstraint(Sketcher.Constraint("Horizontal", 2))
sketch17.addConstraint(Sketcher.Constraint("Vertical", 3))
sketch17.addConstraint(Sketcher.Constraint("PointOnObject", 0, 2, -1))
sketch17.addConstraint(Sketcher.Constraint("DistanceX", 0, 1, 0, 2, 4.0))
sketch17.addConstraint(Sketcher.Constraint("DistanceY", 1, 1, 1, 2, 50.0))
sketch17.addConstraint(Sketcher.Constraint("DistanceX", -1, 1, 0, 2, 7.0))
sketch17.setExpression("Constraints[9]", "Params.sketch17_width")
sketch17.setExpression("Constraints[10]", "Params.sketch17_height")
pad17 = doc.addObject("PartDesign::Pad", "Pad016")
body19.addObject(pad17)
pad17.Profile = sketch17
pad17.setExpression("Length", "Params.pad17_length")
body20 = doc.addObject("PartDesign::Body", "Body019")

# Sketch on XY plane
sketch18 = doc.addObject("Sketcher::SketchObject", "Sketch017")
body20.addObject(sketch18)
sketch18.AttachmentSupport = (doc.getObject("XY_Plane019"), [""])
sketch18.MapMode = "FlatFace"
add_polygon(sketch18, [(43, 0), (47, 0), (47, 50), (43, 50)])  # lines 0-3
sketch18.addConstraint(Sketcher.Constraint("Horizontal", 0))
sketch18.addConstraint(Sketcher.Constraint("Vertical", 1))
sketch18.addConstraint(Sketcher.Constraint("Horizontal", 2))
sketch18.addConstraint(Sketcher.Constraint("Vertical", 3))
sketch18.addConstraint(Sketcher.Constraint("PointOnObject", 0, 2, -1))
sketch18.addConstraint(Sketcher.Constraint("DistanceX", 0, 1, 0, 2, 4.0))
sketch18.addConstraint(Sketcher.Constraint("DistanceY", 1, 1, 1, 2, 50.0))
sketch18.addConstraint(Sketcher.Constraint("DistanceX", -1, 1, 0, 2, 47.0))
sketch18.setExpression("Constraints[9]", "Params.sketch18_width")
sketch18.setExpression("Constraints[10]", "Params.sketch18_height")
pad18 = doc.addObject("PartDesign::Pad", "Pad017")
body20.addObject(pad18)
pad18.Profile = sketch18
pad18.setExpression("Length", "Params.pad18_length")
body21 = doc.addObject("PartDesign::Body", "Body020")

# Sketch on XY plane
sketch19 = doc.addObject("Sketcher::SketchObject", "Sketch018")
body21.addObject(sketch19)
sketch19.AttachmentSupport = (doc.getObject("XY_Plane020"), [""])
sketch19.MapMode = "FlatFace"
add_polygon(sketch19, [(20, 10), (20, 0), (30, 0), (30, 10)])  # lines 0-3
sketch19.addConstraint(Sketcher.Constraint("Vertical", 0))
sketch19.addConstraint(Sketcher.Constraint("Horizontal", 1))
sketch19.addConstraint(Sketcher.Constraint("Vertical", 2))
sketch19.addConstraint(Sketcher.Constraint("Horizontal", 3))
sketch19.addConstraint(Sketcher.Constraint("PointOnObject", 0, 2, -1))
sketch19.addConstraint(Sketcher.Constraint("Equal", 3, 0))
sketch19.addConstraint(Sketcher.Constraint("DistanceX", 1, 1, 1, 2, 10.0))
sketch19.addConstraint(Sketcher.Constraint("DistanceX", -1, 1, 0, 2, 20.0))
sketch19.setExpression("Constraints[10]", "Params.sketch19_width")
pad19 = doc.addObject("PartDesign::Pad", "Pad018")
body21.addObject(pad19)
pad19.Profile = sketch19
pad19.setExpression("Length", "Params.pad19_length")
body22 = doc.addObject("PartDesign::Body", "Body021")

# Sketch on XY plane
sketch20 = doc.addObject("Sketcher::SketchObject", "Sketch019")
body22.addObject(sketch20)
sketch20.AttachmentSupport = (doc.getObject("XY_Plane021"), [""])
sketch20.MapMode = "FlatFace"
add_polygon(sketch20, [(0, 7), (0, 3), (50, 3), (50, 7)])  # lines 0-3
sketch20.addConstraint(Sketcher.Constraint("Vertical", 0))
sketch20.addConstraint(Sketcher.Constraint("Horizontal", 1))
sketch20.addConstraint(Sketcher.Constraint("Vertical", 2))
sketch20.addConstraint(Sketcher.Constraint("Horizontal", 3))
sketch20.addConstraint(Sketcher.Constraint("PointOnObject", 0, 2, -2))
sketch20.addConstraint(Sketcher.Constraint("DistanceX", 1, 1, 1, 2, 50.0))
sketch20.addConstraint(Sketcher.Constraint("DistanceY", 0, 2, 0, 1, 4.0))
sketch20.addConstraint(Sketcher.Constraint("DistanceY", -1, 1, 0, 2, 3.0))
sketch20.setExpression("Constraints[9]", "Params.sketch20_width")
sketch20.setExpression("Constraints[10]", "Params.sketch20_height")
pad20 = doc.addObject("PartDesign::Pad", "Pad019")
body22.addObject(pad20)
pad20.Profile = sketch20
pad20.setExpression("Length", "Params.pad20_length")
doc.recompute()

boolean15 = doc.addObject("PartDesign::Boolean", "Boolean014")
body22.addObject(boolean15)
boolean15.Type = "Cut"
boolean15.addObjects([body21])
body23 = doc.addObject("PartDesign::Body", "Body022")

# Sketch on XY plane
sketch21 = doc.addObject("Sketcher::SketchObject", "Sketch020")
body23.addObject(sketch21)
sketch21.AttachmentSupport = (doc.getObject("XY_Plane022"), [""])
sketch21.MapMode = "FlatFace"
sketch21.AttachmentOffset = App.Placement(App.Vector(0, 0, 25), App.Rotation())
add_polygon(sketch21, [(0, 3), (0, 0), (3, 0), (3, 3)])  # lines 0-3
sketch21.addConstraint(Sketcher.Constraint("Vertical", 0))
sketch21.addConstraint(Sketcher.Constraint("Horizontal", 1))
sketch21.addConstraint(Sketcher.Constraint("Vertical", 2))
sketch21.addConstraint(Sketcher.Constraint("Horizontal", 3))
sketch21.addConstraint(Sketcher.Constraint("Coincident", 0, 2, -1, 1))
sketch21.addConstraint(Sketcher.Constraint("Equal", 3, 0))
sketch21.addConstraint(Sketcher.Constraint("DistanceX", 1, 1, 1, 2, 3.0))
sketch21.setExpression("Constraints[10]", "Params.sketch21_width")
pad21 = doc.addObject("PartDesign::Pad", "Pad020")
body23.addObject(pad21)
pad21.Profile = sketch21
pad21.setExpression("Length", "Params.pad21_length")
body24 = doc.addObject("PartDesign::Body", "Body023")

# Sketch on XY plane
sketch22 = doc.addObject("Sketcher::SketchObject", "Sketch021")
body24.addObject(sketch22)
sketch22.AttachmentSupport = (doc.getObject("XY_Plane023"), [""])
sketch22.MapMode = "FlatFace"
sketch22.AttachmentOffset = App.Placement(App.Vector(0, 0, 25), App.Rotation())
add_polygon(sketch22, [(7, 3), (7, 0), (10, 0), (10, 3)])  # lines 0-3
sketch22.addConstraint(Sketcher.Constraint("Vertical", 0))
sketch22.addConstraint(Sketcher.Constraint("Horizontal", 1))
sketch22.addConstraint(Sketcher.Constraint("Vertical", 2))
sketch22.addConstraint(Sketcher.Constraint("Horizontal", 3))
sketch22.addConstraint(Sketcher.Constraint("PointOnObject", 0, 2, -1))
sketch22.addConstraint(Sketcher.Constraint("Equal", 3, 0))
sketch22.addConstraint(Sketcher.Constraint("DistanceX", 1, 1, 1, 2, 3.0))
sketch22.addConstraint(Sketcher.Constraint("DistanceX", -1, 1, 0, 2, 7.0))
sketch22.setExpression("Constraints[10]", "Params.sketch22_width")
pad22 = doc.addObject("PartDesign::Pad", "Pad021")
body24.addObject(pad22)
pad22.Profile = sketch22
pad22.setExpression("Length", "Params.pad22_length")
body25 = doc.addObject("PartDesign::Body", "Body024")

# Sketch on XY plane
sketch23 = doc.addObject("Sketcher::SketchObject", "Sketch022")
body25.addObject(sketch23)
sketch23.AttachmentSupport = (doc.getObject("XY_Plane024"), [""])
sketch23.MapMode = "FlatFace"
sketch23.AttachmentOffset = App.Placement(App.Vector(0, 0, 25), App.Rotation())
add_polygon(sketch23, [(7, 10), (7, 7), (10, 7), (10, 10)])  # lines 0-3
sketch23.addConstraint(Sketcher.Constraint("Vertical", 0))
sketch23.addConstraint(Sketcher.Constraint("Horizontal", 1))
sketch23.addConstraint(Sketcher.Constraint("Vertical", 2))
sketch23.addConstraint(Sketcher.Constraint("Horizontal", 3))
sketch23.addConstraint(Sketcher.Constraint("Equal", 3, 0))
sketch23.addConstraint(Sketcher.Constraint("DistanceX", 1, 1, 1, 2, 3.0))
sketch23.addConstraint(Sketcher.Constraint("DistanceX", -1, 1, 0, 2, 7.0))
sketch23.addConstraint(Sketcher.Constraint("DistanceY", -1, 1, 0, 2, 7.0))
sketch23.setExpression("Constraints[9]", "Params.sketch23_width")
pad23 = doc.addObject("PartDesign::Pad", "Pad022")
body25.addObject(pad23)
pad23.Profile = sketch23
pad23.setExpression("Length", "Params.pad23_length")
body26 = doc.addObject("PartDesign::Body", "Body025")

# Sketch on XY plane
sketch24 = doc.addObject("Sketcher::SketchObject", "Sketch023")
body26.addObject(sketch24)
sketch24.AttachmentSupport = (doc.getObject("XY_Plane025"), [""])
sketch24.MapMode = "FlatFace"
sketch24.AttachmentOffset = App.Placement(App.Vector(0, 0, 25), App.Rotation())
add_polygon(sketch24, [(0, 10), (0, 7), (3, 7), (3, 10)])  # lines 0-3
sketch24.addConstraint(Sketcher.Constraint("Vertical", 0))
sketch24.addConstraint(Sketcher.Constraint("Horizontal", 1))
sketch24.addConstraint(Sketcher.Constraint("Vertical", 2))
sketch24.addConstraint(Sketcher.Constraint("Horizontal", 3))
sketch24.addConstraint(Sketcher.Constraint("PointOnObject", 0, 2, -2))
sketch24.addConstraint(Sketcher.Constraint("Equal", 3, 0))
sketch24.addConstraint(Sketcher.Constraint("DistanceX", 1, 1, 1, 2, 3.0))
sketch24.addConstraint(Sketcher.Constraint("DistanceY", -1, 1, 0, 2, 7.0))
sketch24.setExpression("Constraints[10]", "Params.sketch24_width")
pad24 = doc.addObject("PartDesign::Pad", "Pad023")
body26.addObject(pad24)
pad24.Profile = sketch24
pad24.setExpression("Length", "Params.pad24_length")
body27 = doc.addObject("PartDesign::Body", "Body026")

# Sketch on XY plane
sketch25 = doc.addObject("Sketcher::SketchObject", "Sketch024")
body27.addObject(sketch25)
sketch25.AttachmentSupport = (doc.getObject("XY_Plane026"), [""])
sketch25.MapMode = "FlatFace"
add_polygon(sketch25, [(0, 10), (0, 0), (10, 0), (10, 10)])  # lines 0-3
sketch25.addConstraint(Sketcher.Constraint("Vertical", 0))
sketch25.addConstraint(Sketcher.Constraint("Horizontal", 1))
sketch25.addConstraint(Sketcher.Constraint("Vertical", 2))
sketch25.addConstraint(Sketcher.Constraint("Horizontal", 3))
sketch25.addConstraint(Sketcher.Constraint("Coincident", 0, 2, -1, 1))
sketch25.addConstraint(Sketcher.Constraint("Equal", 3, 0))
sketch25.addConstraint(Sketcher.Constraint("DistanceX", 1, 1, 1, 2, 10.0))
sketch25.setExpression("Constraints[10]", "Params.sketch25_width")
pad25 = doc.addObject("PartDesign::Pad", "Pad024")
body27.addObject(pad25)
pad25.Profile = sketch25
pad25.setExpression("Length", "Params.pad25_length")
doc.recompute()

boolean16 = doc.addObject("PartDesign::Boolean", "Boolean015")
body27.addObject(boolean16)
boolean16.Type = "Fuse"
boolean16.addObjects([body23])
doc.recompute()

boolean17 = doc.addObject("PartDesign::Boolean", "Boolean016")
body27.addObject(boolean17)
boolean17.Type = "Fuse"
boolean17.addObjects([body24])
doc.recompute()

boolean18 = doc.addObject("PartDesign::Boolean", "Boolean017")
body27.addObject(boolean18)
boolean18.Type = "Fuse"
boolean18.addObjects([body25])
doc.recompute()

boolean19 = doc.addObject("PartDesign::Boolean", "Boolean018")
body27.addObject(boolean19)
boolean19.Type = "Fuse"
boolean19.addObjects([body26])
body28 = doc.addObject("PartDesign::Body", "Body027")
body28.AllowCompound = True
doc.recompute()

body27.Placement = App.Placement(App.Vector(40, 0, 0), App.Rotation(App.Vector(0, 0, 1), 0))
boolean20 = doc.addObject("PartDesign::Boolean", "Boolean019")
body28.addObject(boolean20)
boolean20.Type = "Fuse"
boolean20.addObjects([body27])
doc.recompute()

boolean21 = doc.addObject("PartDesign::Boolean", "Boolean020")
body28.addObject(boolean21)
boolean21.Type = "Fuse"
boolean21.addObjects([body5])
doc.recompute()

boolean22 = doc.addObject("PartDesign::Boolean", "Boolean021")
body28.addObject(boolean22)
boolean22.Type = "Fuse"
boolean22.addObjects([body11])
doc.recompute()

boolean23 = doc.addObject("PartDesign::Boolean", "Boolean022")
body28.addObject(boolean23)
boolean23.Type = "Fuse"
boolean23.addObjects([body17])
doc.recompute()

boolean24 = doc.addObject("PartDesign::Boolean", "Boolean023")
body28.addObject(boolean24)
boolean24.Type = "Fuse"
boolean24.addObjects([body18])
doc.recompute()

boolean25 = doc.addObject("PartDesign::Boolean", "Boolean024")
body28.addObject(boolean25)
boolean25.Type = "Fuse"
boolean25.addObjects([body19])
doc.recompute()

boolean26 = doc.addObject("PartDesign::Boolean", "Boolean025")
body28.addObject(boolean26)
boolean26.Type = "Fuse"
boolean26.addObjects([body20])
doc.recompute()

boolean27 = doc.addObject("PartDesign::Boolean", "Boolean026")
body28.addObject(boolean27)
boolean27.Type = "Fuse"
boolean27.addObjects([body22])

doc.recompute()
